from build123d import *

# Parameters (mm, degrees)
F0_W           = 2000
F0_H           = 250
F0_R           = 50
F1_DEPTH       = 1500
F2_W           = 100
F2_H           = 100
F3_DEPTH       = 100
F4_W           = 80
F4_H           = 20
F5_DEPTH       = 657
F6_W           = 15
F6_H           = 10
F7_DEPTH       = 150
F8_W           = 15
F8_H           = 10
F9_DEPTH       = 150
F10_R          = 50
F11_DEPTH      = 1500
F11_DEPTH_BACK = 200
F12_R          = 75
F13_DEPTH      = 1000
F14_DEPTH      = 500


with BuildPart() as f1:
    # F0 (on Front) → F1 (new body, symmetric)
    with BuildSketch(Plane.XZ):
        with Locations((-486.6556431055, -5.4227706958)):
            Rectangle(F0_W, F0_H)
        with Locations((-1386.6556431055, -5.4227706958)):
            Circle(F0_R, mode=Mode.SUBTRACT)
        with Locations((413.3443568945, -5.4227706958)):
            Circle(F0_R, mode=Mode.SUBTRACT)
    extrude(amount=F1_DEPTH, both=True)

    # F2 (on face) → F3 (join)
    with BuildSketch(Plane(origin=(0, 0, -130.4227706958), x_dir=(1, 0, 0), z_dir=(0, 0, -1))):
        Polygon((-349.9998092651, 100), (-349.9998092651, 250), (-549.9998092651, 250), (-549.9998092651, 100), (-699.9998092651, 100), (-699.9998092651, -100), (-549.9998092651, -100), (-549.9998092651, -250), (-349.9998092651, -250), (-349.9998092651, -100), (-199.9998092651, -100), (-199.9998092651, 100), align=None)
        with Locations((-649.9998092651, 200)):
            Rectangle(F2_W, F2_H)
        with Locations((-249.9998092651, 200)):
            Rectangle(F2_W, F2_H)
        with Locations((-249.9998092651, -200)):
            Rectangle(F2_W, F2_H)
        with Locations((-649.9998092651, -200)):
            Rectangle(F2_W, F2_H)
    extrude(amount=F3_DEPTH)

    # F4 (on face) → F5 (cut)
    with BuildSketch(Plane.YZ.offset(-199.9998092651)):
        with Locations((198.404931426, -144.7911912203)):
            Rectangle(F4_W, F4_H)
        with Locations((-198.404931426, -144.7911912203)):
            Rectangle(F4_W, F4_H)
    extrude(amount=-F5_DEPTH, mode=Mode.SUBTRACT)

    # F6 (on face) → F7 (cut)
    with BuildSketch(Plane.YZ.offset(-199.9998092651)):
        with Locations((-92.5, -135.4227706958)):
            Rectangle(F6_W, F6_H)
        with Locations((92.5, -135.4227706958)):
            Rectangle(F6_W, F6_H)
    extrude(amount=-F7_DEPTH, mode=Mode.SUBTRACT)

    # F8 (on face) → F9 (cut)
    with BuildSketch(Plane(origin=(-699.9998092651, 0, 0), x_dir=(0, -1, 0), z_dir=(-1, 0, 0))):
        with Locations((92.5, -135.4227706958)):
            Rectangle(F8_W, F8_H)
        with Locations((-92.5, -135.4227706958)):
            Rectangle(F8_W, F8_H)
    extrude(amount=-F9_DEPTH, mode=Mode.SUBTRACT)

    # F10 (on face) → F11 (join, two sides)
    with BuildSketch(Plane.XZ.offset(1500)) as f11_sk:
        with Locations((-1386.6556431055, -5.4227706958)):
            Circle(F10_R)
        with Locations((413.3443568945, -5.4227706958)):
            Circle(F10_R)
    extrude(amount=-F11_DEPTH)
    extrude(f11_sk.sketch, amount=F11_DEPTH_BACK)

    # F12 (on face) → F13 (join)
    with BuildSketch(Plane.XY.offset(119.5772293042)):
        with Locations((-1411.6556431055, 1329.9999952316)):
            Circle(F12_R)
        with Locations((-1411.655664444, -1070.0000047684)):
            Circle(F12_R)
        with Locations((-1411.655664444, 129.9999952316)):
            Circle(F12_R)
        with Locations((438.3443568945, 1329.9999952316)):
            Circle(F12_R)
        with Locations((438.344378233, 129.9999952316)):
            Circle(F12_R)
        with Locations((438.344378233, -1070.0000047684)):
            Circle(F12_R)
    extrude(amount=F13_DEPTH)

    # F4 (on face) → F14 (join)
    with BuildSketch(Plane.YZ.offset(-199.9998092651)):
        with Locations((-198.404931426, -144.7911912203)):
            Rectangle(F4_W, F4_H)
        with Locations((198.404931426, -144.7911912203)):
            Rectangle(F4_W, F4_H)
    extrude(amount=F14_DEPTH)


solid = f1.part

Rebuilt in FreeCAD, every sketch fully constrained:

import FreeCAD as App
import Part
import Sketcher
from FreeCAD import Vector
Q = App.Units.Quantity


def add_polygon(sketch, points):
    """Adds a closed chain of lines whose ends are joined by coincident constraints."""
    first, n = sketch.GeometryCount, len(points)
    for a, b in zip(points, points[1:] + points[:1]):
        sketch.addGeometry(Part.LineSegment(App.Vector(*a, 0), App.Vector(*b, 0)), False)
    for i in range(n):
        sketch.addConstraint(Sketcher.Constraint("Coincident", first + i, 2, first + (i + 1) % n, 1))

doc = App.newDocument("Part")
body = doc.addObject("PartDesign::Body", "Body")
body.AllowCompound = True

sketch1 = body.newObject("Sketcher::SketchObject", "Sketch")
sketch1.AttachmentSupport = (doc.getObject("XZ_Plane"), [""])
sketch1.MapMode = "FlatFace"
add_polygon(sketch1, [(-1487, 120), (-1487, -130), (513, -130), (513, 120)])
sketch1.addGeometry(Part.Circle(Vector(-1387, -5, 0), Vector(0, 0, 1), 50), False)
sketch1.addGeometry(Part.Circle(Vector(413, -5, 0), Vector(0, 0, 1), 50), False)
sketch1.addConstraint(Sketcher.Constraint("Vertical", 0))
sketch1.addConstraint(Sketcher.Constraint("Horizontal", 1))
sketch1.addConstraint(Sketcher.Constraint("Vertical", 2))
sketch1.addConstraint(Sketcher.Constraint("Horizontal", 3))
sketch1.addConstraint(Sketcher.Constraint("Equal", 4, 5))
sketch1.addConstraint(Sketcher.Constraint("Horizontal", 4, 3, 5, 3))
sketch1.addConstraint(Sketcher.Constraint("Diameter", 4, Q("100 mm")))
sketch1.addConstraint(Sketcher.Constraint("DistanceX", 1, 1, 1, 2, Q("2000 mm")))
sketch1.addConstraint(Sketcher.Constraint("DistanceY", 0, 2, 0, 1, Q("250 mm")))
sketch1.addConstraint(Sketcher.Constraint("DistanceX", 4, 3, 5, 3, Q("1800 mm")))
sketch1.addConstraint(Sketcher.Constraint("DistanceX", 0, 2, 4, 3, Q("100 mm")))
sketch1.addConstraint(Sketcher.Constraint("DistanceY", 0, 2, 4, 3, Q("125 mm")))
sketch1.addConstraint(Sketcher.Constraint("DistanceY", 4, 3, -1, 1, Q("5.422771 mm")))
sketch1.addConstraint(Sketcher.Constraint("DistanceX", 4, 3, -1, 1, Q("1386.655643 mm")))
pad1 = body.newObject("PartDesign::Pad", "Pad")
pad1.Profile = sketch1
pad1.Length = 3000
pad1.Midplane = True

sketch2 = body.newObject("Sketcher::SketchObject", "Sketch001")
sketch2.AttachmentSupport = (doc.getObject("XY_Plane"), [""])
sketch2.MapMode = "FlatFace"
sketch2.AttachmentOffset = App.Placement(Vector(0, 0, -130.422771), App.Rotation())
add_polygon(sketch2, [(-349.999809, -100), (-349.999809, -250), (-549.999809, -250), (-549.999809, -100), (-699.999809, -100), (-699.999809, 100), (-549.999809, 100), (-549.999809, 250), (-349.999809, 250), (-349.999809, 100), (-199.999809, 100), (-199.999809, -100)])
add_polygon(sketch2, [(-699.999809, -250), (-699.999809, -150), (-599.999809, -150), (-599.999809, -250)])
add_polygon(sketch2, [(-299.999809, -250), (-299.999809, -150), (-199.999809, -150), (-199.999809, -250)])
add_polygon(sketch2, [(-299.999809, 150), (-299.999809, 250), (-199.999809, 250), (-199.999809, 150)])
add_polygon(sketch2, [(-699.999809, 150), (-699.999809, 250), (-599.999809, 250), (-599.999809, 150)])
sketch2.addConstraint(Sketcher.Constraint("Vertical", 0))
sketch2.addConstraint(Sketcher.Constraint("Horizontal", 1))
sketch2.addConstraint(Sketcher.Constraint("Vertical", 2))
sketch2.addConstraint(Sketcher.Constraint("Horizontal", 3))
sketch2.addConstraint(Sketcher.Constraint("Vertical", 4))
sketch2.addConstraint(Sketcher.Constraint("Horizontal", 5))
sketch2.addConstraint(Sketcher.Constraint("Vertical", 6))
sketch2.addConstraint(Sketcher.Constraint("Horizontal", 7))
sketch2.addConstraint(Sketcher.Constraint("Vertical", 8))
sketch2.addConstraint(Sketcher.Constraint("Horizontal", 9))
sketch2.addConstraint(Sketcher.Constraint("Vertical", 10))
sketch2.addConstraint(Sketcher.Constraint("Horizontal", 11))
sketch2.addConstraint(Sketcher.Constraint("Vertical", 12))
sketch2.addConstraint(Sketcher.Constraint("Horizontal", 13))
sketch2.addConstraint(Sketcher.Constraint("Vertical", 14))
sketch2.addConstraint(Sketcher.Constraint("Horizontal", 15))
sketch2.addConstraint(Sketcher.Constraint("Vertical", 16))
sketch2.addConstraint(Sketcher.Constraint("Horizontal", 17))
sketch2.addConstraint(Sketcher.Constraint("Vertical", 18))
sketch2.addConstraint(Sketcher.Constraint("Horizontal", 19))
sketch2.addConstraint(Sketcher.Constraint("Vertical", 20))
sketch2.addConstraint(Sketcher.Constraint("Horizontal", 21))
sketch2.addConstraint(Sketcher.Constraint("Vertical", 22))
sketch2.addConstraint(Sketcher.Constraint("Horizontal", 23))
sketch2.addConstraint(Sketcher.Constraint("Vertical", 24))
sketch2.addConstraint(Sketcher.Constraint("Horizontal", 25))
sketch2.addConstraint(Sketcher.Constraint("Vertical", 26))
sketch2.addConstraint(Sketcher.Constraint("Horizontal", 27))
sketch2.addConstraint(Sketcher.Constraint("Symmetric", 2, 2, 5, 2, -1))
sketch2.addConstraint(Sketcher.Constraint("Symmetric", 0, 2, 7, 2, -1))
sketch2.addConstraint(Sketcher.Constraint("Symmetric", 19, 2, 20, 2, -1))
sketch2.addConstraint(Sketcher.Constraint("Symmetric", 17, 2, 22, 2, -1))
sketch2.addConstraint(Sketcher.Constraint("Symmetric", 15, 2, 24, 2, -1))
sketch2.addConstraint(Sketcher.Constraint("Symmetric", 13, 2, 26, 2, -1))
sketch2.addConstraint(Sketcher.Constraint("Horizontal", 5, 2, 8, 2))
sketch2.addConstraint(Sketcher.Constraint("Horizontal", 3, 2, 10, 2))
sketch2.addConstraint(Sketcher.Constraint("Horizontal", 1, 2, 14, 2))
sketch2.addConstraint(Sketcher.Constraint("Horizontal", 13, 2, 16, 2))
sketch2.addConstraint(Sketcher.Constraint("Horizontal", 15, 2, 18, 2))
sketch2.addConstraint(Sketcher.Constraint("Vertical", 4, 2, 12, 2))
sketch2.addConstraint(Sketcher.Constraint("Vertical", 10, 2, 17, 2))
sketch2.addConstraint(Sketcher.Constraint("Equal", 5, 9))
sketch2.addConstraint(Sketcher.Constraint("Equal", 15, 17))
sketch2.addConstraint(Sketcher.Constraint("Equal", 11, 0))
sketch2.addConstraint(Sketcher.Constraint("Equal", 7, 4))
sketch2.addConstraint(Sketcher.Constraint("Equal", 27, 12))
sketch2.addConstraint(Sketcher.Constraint("DistanceX", 1, 2, 1, 1, Q("200 mm")))
sketch2.addConstraint(Sketcher.Constraint("DistanceX", 3, 2, 3, 1, Q("150 mm")))
sketch2.addConstraint(Sketcher.Constraint("DistanceX", 13, 1, 13, 2, Q("100 mm")))
sketch2.addConstraint(Sketcher.Constraint("DistanceX", 0, 2, -1, 1, Q("349.999809 mm")))
pad2 = body.newObject("PartDesign::Pad", "Pad001")
pad2.Profile = sketch2
pad2.Length = 100
pad2.Reversed = True

sketch3 = body.newObject("Sketcher::SketchObject", "Sketch002")
sketch3.AttachmentSupport = (doc.getObject("YZ_Plane"), [""])
sketch3.MapMode = "FlatFace"
sketch3.AttachmentOffset = App.Placement(Vector(0, 0, -199.999809), App.Rotation())
add_polygon(sketch3, [(158, -135), (158, -155), (238, -155), (238, -135)])
add_polygon(sketch3, [(-238, -135), (-238, -155), (-158, -155), (-158, -135)])
sketch3.addConstraint(Sketcher.Constraint("Vertical", 0))
sketch3.addConstraint(Sketcher.Constraint("Horizontal", 1))
sketch3.addConstraint(Sketcher.Constraint("Vertical", 2))
sketch3.addConstraint(Sketcher.Constraint("Horizontal", 3))
sketch3.addConstraint(Sketcher.Constraint("Vertical", 4))
sketch3.addConstraint(Sketcher.Constraint("Horizontal", 5))
sketch3.addConstraint(Sketcher.Constraint("Vertical", 6))
sketch3.addConstraint(Sketcher.Constraint("Horizontal", 7))
sketch3.addConstraint(Sketcher.Constraint("Symmetric", 1, 2, 4, 2, -2))
sketch3.addConstraint(Sketcher.Constraint("Symmetric", 3, 2, 6, 2, -2))
sketch3.addConstraint(Sketcher.Constraint("DistanceX", 1, 1, 1, 2, Q("80 mm")))
sketch3.addConstraint(Sketcher.Constraint("DistanceY", 0, 2, 0, 1, Q("20 mm")))
sketch3.addConstraint(Sketcher.Constraint("DistanceX", -1, 1, 0, 2, Q("158.404931 mm")))
sketch3.addConstraint(Sketcher.Constraint("DistanceY", 0, 2, -1, 1, Q("154.791191 mm")))
pocket1 = body.newObject("PartDesign::Pocket", "Pocket")
pocket1.Profile = sketch3
pocket1.Length = 657

sketch4 = body.newObject("Sketcher::SketchObject", "Sketch003")
sketch4.AttachmentSupport = (doc.getObject("YZ_Plane"), [""])
sketch4.MapMode = "FlatFace"
sketch4.AttachmentOffset = App.Placement(Vector(0, 0, -199.999809), App.Rotation())
add_polygon(sketch4, [(-100, -130), (-100, -140), (-85, -140), (-85, -130)])
add_polygon(sketch4, [(85, -130), (85, -140), (100, -140), (100, -130)])
sketch4.addConstraint(Sketcher.Constraint("Vertical", 0))
sketch4.addConstraint(Sketcher.Constraint("Horizontal", 1))
sketch4.addConstraint(Sketcher.Constraint("Vertical", 2))
sketch4.addConstraint(Sketcher.Constraint("Horizontal", 3))
sketch4.addConstraint(Sketcher.Constraint("Vertical", 4))
sketch4.addConstraint(Sketcher.Constraint("Horizontal", 5))
sketch4.addConstraint(Sketcher.Constraint("Vertical", 6))
sketch4.addConstraint(Sketcher.Constraint("Horizontal", 7))
sketch4.addConstraint(Sketcher.Constraint("Symmetric", 1, 2, 4, 2, -2))
sketch4.addConstraint(Sketcher.Constraint("Symmetric", 3, 2, 6, 2, -2))
sketch4.addConstraint(Sketcher.Constraint("DistanceX", 1, 1, 1, 2, Q("15 mm")))
sketch4.addConstraint(Sketcher.Constraint("DistanceY", 0, 2, 0, 1, Q("10 mm")))
sketch4.addConstraint(Sketcher.Constraint("DistanceX", 0, 2, -1, 1, Q("100 mm")))
sketch4.addConstraint(Sketcher.Constraint("DistanceY", 0, 2, -1, 1, Q("140.422771 mm")))
pocket2 = body.newObject("PartDesign::Pocket", "Pocket001")
pocket2.Profile = sketch4
pocket2.Length = 150

sketch5 = body.newObject("Sketcher::SketchObject", "Sketch004")
sketch5.AttachmentSupport = (doc.getObject("YZ_Plane"), [""])
sketch5.MapMode = "FlatFace"
sketch5.AttachmentOffset = App.Placement(Vector(0, 0, -699.999809), App.Rotation())
add_polygon(sketch5, [(-85, -130), (-85, -140), (-100, -140), (-100, -130)])
add_polygon(sketch5, [(100, -130), (100, -140), (85, -140), (85, -130)])
sketch5.addConstraint(Sketcher.Constraint("Vertical", 0))
sketch5.addConstraint(Sketcher.Constraint("Horizontal", 1))
sketch5.addConstraint(Sketcher.Constraint("Vertical", 2))
sketch5.addConstraint(Sketcher.Constraint("Horizontal", 3))
sketch5.addConstraint(Sketcher.Constraint("Vertical", 4))
sketch5.addConstraint(Sketcher.Constraint("Horizontal", 5))
sketch5.addConstraint(Sketcher.Constraint("Vertical", 6))
sketch5.addConstraint(Sketcher.Constraint("Horizontal", 7))
sketch5.addConstraint(Sketcher.Constraint("Symmetric", 1, 2, 4, 2, -2))
sketch5.addConstraint(Sketcher.Constraint("Symmetric", 3, 2, 6, 2, -2))
sketch5.addConstraint(Sketcher.Constraint("DistanceX", 1, 2, 1, 1, Q("15 mm")))
sketch5.addConstraint(Sketcher.Constraint("DistanceY", 0, 2, 0, 1, Q("10 mm")))
sketch5.addConstraint(Sketcher.Constraint("DistanceX", 0, 2, -1, 1, Q("85 mm")))
sketch5.addConstraint(Sketcher.Constraint("DistanceY", 0, 2, -1, 1, Q("140.422771 mm")))
pocket3 = body.newObject("PartDesign::Pocket", "Pocket002")
pocket3.Profile = sketch5
pocket3.Length = 150
pocket3.Reversed = True

sketch6 = body.newObject("Sketcher::SketchObject", "Sketch005")
sketch6.AttachmentSupport = (doc.getObject("XZ_Plane"), [""])
sketch6.MapMode = "FlatFace"
sketch6.AttachmentOffset = App.Placement(Vector(0, 0, 1500), App.Rotation())
sketch6.addGeometry(Part.Circle(Vector(-1387, -5, 0), Vector(0, 0, 1), 50), False)
sketch6.addGeometry(Part.Circle(Vector(413, -5, 0), Vector(0, 0, 1), 50), False)
sketch6.addConstraint(Sketcher.Constraint("Equal", 0, 1))
sketch6.addConstraint(Sketcher.Constraint("Horizontal", 0, 3, 1, 3))
sketch6.addConstraint(Sketcher.Constraint("Diameter", 0, Q("100 mm")))
sketch6.addConstraint(Sketcher.Constraint("DistanceX", 0, 3, 1, 3, Q("1800 mm")))
sketch6.addConstraint(Sketcher.Constraint("DistanceY", 0, 3, -1, 1, Q("5.422771 mm")))
sketch6.addConstraint(Sketcher.Constraint("DistanceX", 0, 3, -1, 1, Q("1386.655643 mm")))
pad3 = body.newObject("PartDesign::Pad", "Pad002")
pad3.Profile = sketch6
pad3.Type = "TwoLengths"
pad3.Length = 1500
pad3.Length2 = 200
pad3.Reversed = True

sketch7 = body.newObject("Sketcher::SketchObject", "Sketch006")
sketch7.AttachmentSupport = (doc.getObject("XY_Plane"), [""])
sketch7.MapMode = "FlatFace"
sketch7.AttachmentOffset = App.Placement(Vector(0, 0, 119.577229), App.Rotation())
sketch7.addGeometry(Part.Circle(Vector(-1412, 1330, 0), Vector(0, 0, 1), 75), False)
sketch7.addGeometry(Part.Circle(Vector(-1412, -1070, 0), Vector(0, 0, 1), 75), False)
sketch7.addGeometry(Part.Circle(Vector(-1412, 130, 0), Vector(0, 0, 1), 75), False)
sketch7.addGeometry(Part.Circle(Vector(438, 1330, 0), Vector(0, 0, 1), 75), False)
sketch7.addGeometry(Part.Circle(Vector(438, 130, 0), Vector(0, 0, 1), 75), False)
sketch7.addGeometry(Part.Circle(Vector(438, -1070, 0), Vector(0, 0, 1), 75), False)
sketch7.addConstraint(Sketcher.Constraint("Equal", 0, 1))
sketch7.addConstraint(Sketcher.Constraint("Equal", 1, 2))
sketch7.addConstraint(Sketcher.Constraint("Equal", 2, 3))
sketch7.addConstraint(Sketcher.Constraint("Equal", 3, 4))
sketch7.addConstraint(Sketcher.Constraint("Equal", 4, 5))
sketch7.addConstraint(Sketcher.Constraint("Horizontal", 0, 3, 3, 3))
sketch7.addConstraint(Sketcher.Constraint("Horizontal", 2, 3, 4, 3))
sketch7.addConstraint(Sketcher.Constraint("Horizontal", 1, 3, 5, 3))
sketch7.addConstraint(Sketcher.Constraint("Vertical", 1, 3, 2, 3))
sketch7.addConstraint(Sketcher.Constraint("Vertical", 4, 3, 5, 3))
sketch7.addConstraint(Sketcher.Constraint("Diameter", 0, Q("150 mm")))
sketch7.addConstraint(Sketcher.Constraint("DistanceY", 1, 3, 0, 3, Q("2400 mm")))
sketch7.addConstraint(Sketcher.Constraint("DistanceY", 1, 3, 2, 3, Q("1200 mm")))
sketch7.addConstraint(Sketcher.Constraint("DistanceX", 0, 3, 3, 3, Q("1850 mm")))
sketch7.addConstraint(Sketcher.Constraint("DistanceX", -1, 1, 4, 3, Q("438.344378 mm")))
sketch7.addConstraint(Sketcher.Constraint("DistanceX", 2, 3, 3, 3, Q("1850.000021 mm")))
sketch7.addConstraint(Sketcher.Constraint("DistanceX", 0, 3, 4, 3, Q("1850.000021 mm")))
sketch7.addConstraint(Sketcher.Constraint("DistanceY", -1, 1, 0, 3, Q("1329.999995 mm")))
pad4 = body.newObject("PartDesign::Pad", "Pad003")
pad4.Profile = sketch7
pad4.Length = 1000

sketch8 = body.newObject("Sketcher::SketchObject", "Sketch007")
sketch8.AttachmentSupport = (doc.getObject("YZ_Plane"), [""])
sketch8.MapMode = "FlatFace"
sketch8.AttachmentOffset = App.Placement(Vector(0, 0, -199.999809), App.Rotation())
add_polygon(sketch8, [(-238, -135), (-238, -155), (-158, -155), (-158, -135)])
add_polygon(sketch8, [(158, -135), (158, -155), (238, -155), (238, -135)])
sketch8.addConstraint(Sketcher.Constraint("Vertical", 0))
sketch8.addConstraint(Sketcher.Constraint("Horizontal", 1))
sketch8.addConstraint(Sketcher.Constraint("Vertical", 2))
sketch8.addConstraint(Sketcher.Constraint("Horizontal", 3))
sketch8.addConstraint(Sketcher.Constraint("Vertical", 4))
sketch8.addConstraint(Sketcher.Constraint("Horizontal", 5))
sketch8.addConstraint(Sketcher.Constraint("Vertical", 6))
sketch8.addConstraint(Sketcher.Constraint("Horizontal", 7))
sketch8.addConstraint(Sketcher.Constraint("Symmetric", 1, 2, 4, 2, -2))
sketch8.addConstraint(Sketcher.Constraint("Symmetric", 3, 2, 6, 2, -2))
sketch8.addConstraint(Sketcher.Constraint("DistanceX", 1, 1, 1, 2, Q("80 mm")))
sketch8.addConstraint(Sketcher.Constraint("DistanceY", 0, 2, 0, 1, Q("20 mm")))
sketch8.addConstraint(Sketcher.Constraint("DistanceX", 0, 2, -1, 1, Q("238.404931 mm")))
sketch8.addConstraint(Sketcher.Constraint("DistanceY", 0, 2, -1, 1, Q("154.791191 mm")))
pad5 = body.newObject("PartDesign::Pad", "Pad004")
pad5.Profile = sketch8
pad5.Length = 500

doc.recompute()
